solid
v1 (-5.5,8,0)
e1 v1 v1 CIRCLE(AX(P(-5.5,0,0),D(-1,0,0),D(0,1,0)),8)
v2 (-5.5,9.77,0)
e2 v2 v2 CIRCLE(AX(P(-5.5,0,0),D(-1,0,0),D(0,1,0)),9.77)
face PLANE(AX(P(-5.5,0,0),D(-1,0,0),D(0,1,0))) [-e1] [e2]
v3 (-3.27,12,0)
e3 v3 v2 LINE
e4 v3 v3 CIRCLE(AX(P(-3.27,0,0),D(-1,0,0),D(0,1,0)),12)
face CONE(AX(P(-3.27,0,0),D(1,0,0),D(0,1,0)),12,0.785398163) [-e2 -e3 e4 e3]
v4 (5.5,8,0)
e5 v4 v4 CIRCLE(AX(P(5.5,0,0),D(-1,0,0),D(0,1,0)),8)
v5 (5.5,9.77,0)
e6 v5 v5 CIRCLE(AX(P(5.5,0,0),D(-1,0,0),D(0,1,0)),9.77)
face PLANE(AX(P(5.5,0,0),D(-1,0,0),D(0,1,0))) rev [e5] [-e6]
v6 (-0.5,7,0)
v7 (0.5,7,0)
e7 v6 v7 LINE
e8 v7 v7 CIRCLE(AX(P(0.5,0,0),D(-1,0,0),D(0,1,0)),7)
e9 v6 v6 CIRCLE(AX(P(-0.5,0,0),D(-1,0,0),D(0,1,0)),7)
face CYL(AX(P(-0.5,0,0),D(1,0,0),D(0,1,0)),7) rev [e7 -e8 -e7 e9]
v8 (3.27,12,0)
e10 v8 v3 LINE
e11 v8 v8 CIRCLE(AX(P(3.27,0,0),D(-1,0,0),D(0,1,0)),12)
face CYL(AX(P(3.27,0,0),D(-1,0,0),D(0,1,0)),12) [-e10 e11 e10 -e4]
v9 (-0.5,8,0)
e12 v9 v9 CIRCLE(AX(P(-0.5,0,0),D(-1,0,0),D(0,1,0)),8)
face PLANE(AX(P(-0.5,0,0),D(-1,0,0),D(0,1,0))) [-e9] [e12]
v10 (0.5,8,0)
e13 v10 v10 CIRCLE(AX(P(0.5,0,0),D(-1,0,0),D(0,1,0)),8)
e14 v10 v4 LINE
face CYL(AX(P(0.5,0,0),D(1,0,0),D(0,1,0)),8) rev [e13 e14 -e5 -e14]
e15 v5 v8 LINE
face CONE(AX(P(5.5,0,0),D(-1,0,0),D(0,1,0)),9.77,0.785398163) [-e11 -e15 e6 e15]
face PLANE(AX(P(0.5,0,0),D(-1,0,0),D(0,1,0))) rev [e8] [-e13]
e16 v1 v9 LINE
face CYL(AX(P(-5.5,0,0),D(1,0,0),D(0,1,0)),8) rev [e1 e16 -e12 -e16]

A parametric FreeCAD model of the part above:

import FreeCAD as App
import Part
import Sketcher

V = App.Vector
Q = App.Units.Quantity


def add_polygon(sketch, points):
    """Adds a closed chain of lines whose ends are joined by coincident constraints."""
    first, n = sketch.GeometryCount, len(points)
    for a, b in zip(points, points[1:] + points[:1]):
        sketch.addGeometry(Part.LineSegment(App.Vector(*a, 0), App.Vector(*b, 0)), False)
    for i in range(n):
        sketch.addConstraint(Sketcher.Constraint("Coincident", first + i, 2, first + (i + 1) % n, 1))

doc = App.newDocument("Part")
body = doc.addObject("PartDesign::Body", "Body")

# Sketch on XY plane
sketch1 = body.newObject("Sketcher::SketchObject", "Sketch")
sketch1.AttachmentSupport = (doc.getObject("XY_Plane"), [""])
sketch1.MapMode = "FlatFace"
add_polygon(sketch1, [(-3.3, 12), (-5.5, 9.8), (-5.5, 8), (-0.5, 8), (-0.5, 7), (0.5, 7), (0.5, 8), (5.5, 8), (5.5, 9.8), (3.3, 12)])  # lines 0-9
sketch1.addConstraint([
    Sketcher.Constraint("Vertical", 1),
    Sketcher.Constraint("Horizontal", 2),
    Sketcher.Constraint("Vertical", 3),
    Sketcher.Constraint("Horizontal", 4),
    Sketcher.Constraint("Vertical", 5),
    Sketcher.Constraint("Horizontal", 6),
    Sketcher.Constraint("Vertical", 7),
    Sketcher.Constraint("Horizontal", 9),
    Sketcher.Constraint("Symmetric", 2, 2, 5, 2, -2),
    Sketcher.Constraint("Symmetric", 0, 2, 7, 2, -2),
    Sketcher.Constraint("Perpendicular", 0, 8),
    Sketcher.Constraint("Equal", 4, 3),
    Sketcher.Constraint("Equal", 0, 8),
    Sketcher.Constraint("DistanceX", 4, 1, 4, 2, Q("1 mm")),
    Sketcher.Constraint("DistanceX", 1, 2, 6, 2, Q("11 mm")),
    Sketcher.Constraint("DistanceY", -1, 1, 0, 2, Q("9.77 mm")),
    Sketcher.Constraint("DistanceY", -1, 1, 1, 2, Q("8 mm")),
    Sketcher.Constraint("DistanceY", -1, 1, 8, 2, Q("12 mm")),
])
revolution = body.newObject("PartDesign::Revolution", "Revolution")
revolution.Profile = sketch1
revolution.ReferenceAxis = (sketch1, ["H_Axis"])
revolution.Angle = 360

doc.recompute()
